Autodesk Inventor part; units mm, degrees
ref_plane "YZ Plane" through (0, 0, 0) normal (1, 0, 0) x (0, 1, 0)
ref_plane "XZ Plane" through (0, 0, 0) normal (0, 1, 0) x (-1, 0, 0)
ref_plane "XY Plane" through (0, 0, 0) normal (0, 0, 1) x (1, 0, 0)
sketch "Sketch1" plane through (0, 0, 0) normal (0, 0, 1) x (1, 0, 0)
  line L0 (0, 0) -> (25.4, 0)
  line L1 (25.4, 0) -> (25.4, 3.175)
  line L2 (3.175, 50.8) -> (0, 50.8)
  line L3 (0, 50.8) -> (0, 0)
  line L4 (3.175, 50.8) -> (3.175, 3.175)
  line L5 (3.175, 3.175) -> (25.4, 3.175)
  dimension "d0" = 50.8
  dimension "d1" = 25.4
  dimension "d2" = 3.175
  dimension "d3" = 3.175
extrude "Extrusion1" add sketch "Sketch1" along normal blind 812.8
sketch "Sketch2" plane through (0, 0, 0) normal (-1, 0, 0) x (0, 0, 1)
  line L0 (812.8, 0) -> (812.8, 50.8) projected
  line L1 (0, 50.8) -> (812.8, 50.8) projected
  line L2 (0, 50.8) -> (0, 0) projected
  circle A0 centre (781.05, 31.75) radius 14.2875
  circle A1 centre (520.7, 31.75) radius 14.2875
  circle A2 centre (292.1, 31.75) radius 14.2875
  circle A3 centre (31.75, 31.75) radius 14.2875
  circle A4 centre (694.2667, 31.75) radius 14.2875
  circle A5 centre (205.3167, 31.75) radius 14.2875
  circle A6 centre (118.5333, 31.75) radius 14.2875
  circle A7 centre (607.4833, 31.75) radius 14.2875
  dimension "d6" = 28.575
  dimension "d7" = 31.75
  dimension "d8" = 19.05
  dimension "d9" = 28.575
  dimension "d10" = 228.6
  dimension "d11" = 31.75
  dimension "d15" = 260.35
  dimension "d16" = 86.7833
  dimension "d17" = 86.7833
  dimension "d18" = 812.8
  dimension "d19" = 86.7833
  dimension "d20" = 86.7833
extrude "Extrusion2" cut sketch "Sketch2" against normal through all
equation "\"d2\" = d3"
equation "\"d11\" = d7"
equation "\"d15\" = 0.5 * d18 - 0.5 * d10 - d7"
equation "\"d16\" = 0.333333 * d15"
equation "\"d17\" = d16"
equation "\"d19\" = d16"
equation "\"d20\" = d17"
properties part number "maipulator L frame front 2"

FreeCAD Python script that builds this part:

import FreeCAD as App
import Part
import Sketcher
from FreeCAD import Vector
Q = App.Units.Quantity


def add_polygon(sketch, points):
    """Adds a closed chain of lines whose ends are joined by coincident constraints."""
    first, n = sketch.GeometryCount, len(points)
    for a, b in zip(points, points[1:] + points[:1]):
        sketch.addGeometry(Part.LineSegment(App.Vector(*a, 0), App.Vector(*b, 0)), False)
    for i in range(n):
        sketch.addConstraint(Sketcher.Constraint("Coincident", first + i, 2, first + (i + 1) % n, 1))

doc = App.newDocument("Part")
body = doc.addObject("PartDesign::Body", "Body")

sketch1 = body.newObject("Sketcher::SketchObject", "Sketch")
sketch1.AttachmentSupport = (doc.getObject("XY_Plane"), [""])
sketch1.MapMode = "FlatFace"
add_polygon(sketch1, [(0, 50.8), (0, 0), (25.4, 0), (25.4, 3.2), (3.2, 3.2), (3.2, 50.8)])
sketch1.addConstraint([
    Sketcher.Constraint("Vertical", 0),
    Sketcher.Constraint("Horizontal", 1),
    Sketcher.Constraint("Vertical", 2),
    Sketcher.Constraint("Horizontal", 3),
    Sketcher.Constraint("Vertical", 4),
    Sketcher.Constraint("Horizontal", 5),
    Sketcher.Constraint("Coincident", 0, 2, -1, 1),
    Sketcher.Constraint("Equal", 5, 2),
    Sketcher.Constraint("DistanceX", 1, 1, 1, 2, Q("1 in")),
    Sketcher.Constraint("DistanceY", 0, 2, 0, 1, Q("2 in")),
    Sketcher.Constraint("DistanceX", 5, 2, 5, 1, Q("0.125 in")),
])
pad1 = body.newObject("PartDesign::Pad", "Pad")
pad1.Profile = sketch1
pad1.Length = Q("32 in")

sketch2 = body.newObject("Sketcher::SketchObject", "Sketch001")
sketch2.AttachmentSupport = (doc.getObject("YZ_Plane"), [""])
sketch2.MapMode = "FlatFace"
sketch2.addGeometry([
    Part.Circle(Vector(32, 781, 0), Vector(0, 0, 1), 14),
    Part.Circle(Vector(32, 521, 0), Vector(0, 0, 1), 14),
    Part.Circle(Vector(32, 292, 0), Vector(0, 0, 1), 14),
    Part.Circle(Vector(32, 32, 0), Vector(0, 0, 1), 14),
    Part.Circle(Vector(32, 694, 0), Vector(0, 0, 1), 14),
    Part.Circle(Vector(32, 205, 0), Vector(0, 0, 1), 14),
    Part.Circle(Vector(32, 119, 0), Vector(0, 0, 1), 14),
    Part.Circle(Vector(32, 607, 0), Vector(0, 0, 1), 14),
], False)
sketch2.addConstraint([
    Sketcher.Constraint("Equal", 0, 1),
    Sketcher.Constraint("Equal", 1, 2),
    Sketcher.Constraint("Equal", 2, 3),
    Sketcher.Constraint("Equal", 3, 4),
    Sketcher.Constraint("Equal", 4, 5),
    Sketcher.Constraint("Equal", 5, 6),
    Sketcher.Constraint("Equal", 6, 7),
    Sketcher.Constraint("Vertical", 0, 3, 1, 3),
    Sketcher.Constraint("Vertical", 1, 3, 2, 3),
    Sketcher.Constraint("Vertical", 2, 3, 3, 3),
    Sketcher.Constraint("Vertical", 3, 3, 4, 3),
    Sketcher.Constraint("Vertical", 4, 3, 5, 3),
    Sketcher.Constraint("Vertical", 5, 3, 6, 3),
    Sketcher.Constraint("Vertical", 6, 3, 7, 3),
    Sketcher.Constraint("Diameter", 0, Q("1.125 in")),
    Sketcher.Constraint("DistanceY", 2, 3, 1, 3, Q("9 in")),
    Sketcher.Constraint("DistanceX", -1, 1, 0, 3, Q("1.25 in")),
    Sketcher.Constraint("DistanceY", -1, 1, 3, 3, Q("1.25 in")),
    Sketcher.Constraint("DistanceY", 1, 3, 0, 3, Q("10.25 in")),
    Sketcher.Constraint("DistanceY", 3, 3, 2, 3, Q("10.25 in")),
    Sketcher.Constraint("DistanceY", 4, 3, 0, 3, 86.7833),
    Sketcher.Constraint("DistanceY", 5, 3, 2, 3, 86.7833),
    Sketcher.Constraint("DistanceY", 3, 3, 6, 3, 86.7833),
    Sketcher.Constraint("DistanceY", 1, 3, 7, 3, 86.7833),
])
pocket1 = body.newObject("PartDesign::Pocket", "Pocket")
pocket1.Profile = sketch2
pocket1.Type = "ThroughAll"
pocket1.Reversed = True

doc.recompute()
